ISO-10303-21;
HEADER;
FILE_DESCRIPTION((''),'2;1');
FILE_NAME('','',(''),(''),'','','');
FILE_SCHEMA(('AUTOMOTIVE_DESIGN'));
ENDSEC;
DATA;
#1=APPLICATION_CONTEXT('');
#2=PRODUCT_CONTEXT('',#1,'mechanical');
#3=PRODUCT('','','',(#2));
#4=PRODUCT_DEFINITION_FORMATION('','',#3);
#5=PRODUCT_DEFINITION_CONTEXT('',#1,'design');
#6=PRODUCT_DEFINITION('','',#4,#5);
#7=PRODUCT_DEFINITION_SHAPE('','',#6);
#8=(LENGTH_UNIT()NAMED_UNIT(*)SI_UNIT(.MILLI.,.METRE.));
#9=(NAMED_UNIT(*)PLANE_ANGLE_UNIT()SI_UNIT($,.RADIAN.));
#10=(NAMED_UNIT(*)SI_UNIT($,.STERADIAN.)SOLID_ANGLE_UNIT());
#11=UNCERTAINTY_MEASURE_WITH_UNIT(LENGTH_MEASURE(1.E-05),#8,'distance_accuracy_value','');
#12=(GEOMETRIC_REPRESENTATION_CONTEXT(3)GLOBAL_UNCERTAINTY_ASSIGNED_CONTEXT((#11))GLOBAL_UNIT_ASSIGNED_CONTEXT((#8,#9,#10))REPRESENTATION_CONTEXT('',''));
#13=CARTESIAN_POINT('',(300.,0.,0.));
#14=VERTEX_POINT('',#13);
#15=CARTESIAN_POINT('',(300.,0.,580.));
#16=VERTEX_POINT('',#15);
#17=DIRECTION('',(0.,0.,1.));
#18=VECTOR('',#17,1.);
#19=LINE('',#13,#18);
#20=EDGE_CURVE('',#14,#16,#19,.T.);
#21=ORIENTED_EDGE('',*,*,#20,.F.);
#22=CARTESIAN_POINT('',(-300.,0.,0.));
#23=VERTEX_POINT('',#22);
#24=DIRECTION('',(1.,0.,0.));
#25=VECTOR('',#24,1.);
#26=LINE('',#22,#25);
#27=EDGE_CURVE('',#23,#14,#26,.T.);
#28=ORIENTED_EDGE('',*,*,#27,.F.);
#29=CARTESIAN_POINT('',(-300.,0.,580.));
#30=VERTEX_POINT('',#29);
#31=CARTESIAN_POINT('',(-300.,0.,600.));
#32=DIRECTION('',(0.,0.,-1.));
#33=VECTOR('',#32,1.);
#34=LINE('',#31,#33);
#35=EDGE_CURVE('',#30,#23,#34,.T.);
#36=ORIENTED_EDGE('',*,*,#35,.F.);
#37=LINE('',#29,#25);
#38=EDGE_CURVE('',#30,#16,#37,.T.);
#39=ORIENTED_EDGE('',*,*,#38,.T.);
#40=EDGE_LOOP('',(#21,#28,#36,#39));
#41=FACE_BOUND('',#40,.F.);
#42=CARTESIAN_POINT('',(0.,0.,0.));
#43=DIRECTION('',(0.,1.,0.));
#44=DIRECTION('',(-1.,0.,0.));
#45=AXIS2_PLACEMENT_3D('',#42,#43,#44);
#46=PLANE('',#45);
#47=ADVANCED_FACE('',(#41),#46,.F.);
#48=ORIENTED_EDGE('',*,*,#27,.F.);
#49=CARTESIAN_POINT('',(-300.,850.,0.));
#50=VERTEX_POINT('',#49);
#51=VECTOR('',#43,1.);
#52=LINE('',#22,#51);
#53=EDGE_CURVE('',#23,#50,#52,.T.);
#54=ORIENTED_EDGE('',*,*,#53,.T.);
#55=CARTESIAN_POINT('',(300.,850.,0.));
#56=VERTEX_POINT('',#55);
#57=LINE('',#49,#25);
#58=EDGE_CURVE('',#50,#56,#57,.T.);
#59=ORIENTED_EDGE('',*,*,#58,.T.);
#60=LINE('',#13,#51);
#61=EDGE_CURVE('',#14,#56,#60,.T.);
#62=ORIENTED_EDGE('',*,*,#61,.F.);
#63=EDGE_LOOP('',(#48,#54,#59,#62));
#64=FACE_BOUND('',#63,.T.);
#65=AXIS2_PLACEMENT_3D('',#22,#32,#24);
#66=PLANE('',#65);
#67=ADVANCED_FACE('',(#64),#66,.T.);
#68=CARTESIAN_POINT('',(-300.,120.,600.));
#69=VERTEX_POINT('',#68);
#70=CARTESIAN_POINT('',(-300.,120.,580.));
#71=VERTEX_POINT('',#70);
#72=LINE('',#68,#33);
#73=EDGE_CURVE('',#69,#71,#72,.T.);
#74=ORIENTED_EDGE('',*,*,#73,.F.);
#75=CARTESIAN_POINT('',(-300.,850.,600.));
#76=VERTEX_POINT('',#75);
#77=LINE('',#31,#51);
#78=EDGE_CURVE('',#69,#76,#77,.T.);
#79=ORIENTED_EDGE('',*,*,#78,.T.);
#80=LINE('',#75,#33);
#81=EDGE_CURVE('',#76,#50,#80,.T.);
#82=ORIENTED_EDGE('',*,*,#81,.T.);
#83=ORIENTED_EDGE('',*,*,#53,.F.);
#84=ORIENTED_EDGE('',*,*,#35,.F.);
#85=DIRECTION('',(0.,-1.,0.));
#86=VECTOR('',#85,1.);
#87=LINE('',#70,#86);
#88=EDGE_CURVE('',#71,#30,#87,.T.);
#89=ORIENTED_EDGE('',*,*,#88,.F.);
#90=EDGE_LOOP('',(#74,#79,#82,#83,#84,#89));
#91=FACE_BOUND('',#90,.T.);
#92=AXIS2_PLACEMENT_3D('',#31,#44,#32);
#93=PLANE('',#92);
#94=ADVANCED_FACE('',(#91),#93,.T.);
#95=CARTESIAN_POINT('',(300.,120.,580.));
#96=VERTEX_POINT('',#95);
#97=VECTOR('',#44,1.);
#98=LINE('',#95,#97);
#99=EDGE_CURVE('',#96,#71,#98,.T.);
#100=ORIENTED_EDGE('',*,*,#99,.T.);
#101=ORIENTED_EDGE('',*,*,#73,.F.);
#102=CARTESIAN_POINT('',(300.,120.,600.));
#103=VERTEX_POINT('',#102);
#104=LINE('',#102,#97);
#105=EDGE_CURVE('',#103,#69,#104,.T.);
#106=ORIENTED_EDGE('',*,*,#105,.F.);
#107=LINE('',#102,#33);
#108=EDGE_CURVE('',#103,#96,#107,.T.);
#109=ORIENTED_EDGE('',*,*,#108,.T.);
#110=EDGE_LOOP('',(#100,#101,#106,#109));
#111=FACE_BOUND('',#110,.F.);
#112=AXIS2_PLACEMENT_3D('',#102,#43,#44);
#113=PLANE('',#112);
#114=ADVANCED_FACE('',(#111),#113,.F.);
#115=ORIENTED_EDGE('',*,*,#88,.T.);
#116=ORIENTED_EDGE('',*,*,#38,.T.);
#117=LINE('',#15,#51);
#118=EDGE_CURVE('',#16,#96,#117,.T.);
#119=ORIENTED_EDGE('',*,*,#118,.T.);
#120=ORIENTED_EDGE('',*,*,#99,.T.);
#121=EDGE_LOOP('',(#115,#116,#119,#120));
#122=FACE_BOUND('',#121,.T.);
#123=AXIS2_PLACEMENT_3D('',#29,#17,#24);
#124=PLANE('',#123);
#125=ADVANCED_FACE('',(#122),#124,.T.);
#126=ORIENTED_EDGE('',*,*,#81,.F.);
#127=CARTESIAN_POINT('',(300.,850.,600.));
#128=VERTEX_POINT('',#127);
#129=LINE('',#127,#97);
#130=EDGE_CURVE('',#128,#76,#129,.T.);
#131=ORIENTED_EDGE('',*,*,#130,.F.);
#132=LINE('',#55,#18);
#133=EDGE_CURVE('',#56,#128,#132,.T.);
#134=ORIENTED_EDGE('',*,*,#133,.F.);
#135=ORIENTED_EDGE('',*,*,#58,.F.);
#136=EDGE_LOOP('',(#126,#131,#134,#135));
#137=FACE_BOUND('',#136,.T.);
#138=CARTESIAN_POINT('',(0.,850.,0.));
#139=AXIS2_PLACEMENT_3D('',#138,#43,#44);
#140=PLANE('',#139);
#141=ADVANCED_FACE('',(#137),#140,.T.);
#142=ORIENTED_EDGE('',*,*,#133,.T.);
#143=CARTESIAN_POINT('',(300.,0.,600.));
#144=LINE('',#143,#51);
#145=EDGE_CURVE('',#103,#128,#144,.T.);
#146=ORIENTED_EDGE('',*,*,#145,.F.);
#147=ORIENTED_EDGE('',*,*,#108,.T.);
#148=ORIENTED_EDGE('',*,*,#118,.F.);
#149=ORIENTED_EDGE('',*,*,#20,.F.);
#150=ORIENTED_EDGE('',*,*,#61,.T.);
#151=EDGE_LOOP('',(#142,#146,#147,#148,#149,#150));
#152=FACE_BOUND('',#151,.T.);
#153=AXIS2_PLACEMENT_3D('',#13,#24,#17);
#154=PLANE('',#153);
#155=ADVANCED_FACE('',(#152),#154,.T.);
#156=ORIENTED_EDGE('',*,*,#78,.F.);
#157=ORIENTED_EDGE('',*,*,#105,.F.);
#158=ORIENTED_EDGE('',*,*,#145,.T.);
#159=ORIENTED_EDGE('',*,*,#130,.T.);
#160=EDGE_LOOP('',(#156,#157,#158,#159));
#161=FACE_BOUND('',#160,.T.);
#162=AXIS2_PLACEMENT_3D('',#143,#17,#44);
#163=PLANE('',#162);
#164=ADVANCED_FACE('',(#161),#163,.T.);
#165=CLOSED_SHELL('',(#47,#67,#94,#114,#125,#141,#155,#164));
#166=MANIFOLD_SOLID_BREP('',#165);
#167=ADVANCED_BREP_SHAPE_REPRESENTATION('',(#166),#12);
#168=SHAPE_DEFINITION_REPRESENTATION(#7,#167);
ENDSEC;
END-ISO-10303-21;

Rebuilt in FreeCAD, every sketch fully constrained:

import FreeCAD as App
import Part
import Sketcher

V = App.Vector


def add_polygon(sketch, points):
    """Adds a closed chain of lines whose ends are joined by coincident constraints."""
    first, n = sketch.GeometryCount, len(points)
    for a, b in zip(points, points[1:] + points[:1]):
        sketch.addGeometry(Part.LineSegment(App.Vector(*a, 0), App.Vector(*b, 0)), False)
    for i in range(n):
        sketch.addConstraint(Sketcher.Constraint("Coincident", first + i, 2, first + (i + 1) % n, 1))

doc = App.newDocument("Part")
body = doc.addObject("PartDesign::Body", "Body")

# Sketch on XZ plane
sketch1 = body.newObject("Sketcher::SketchObject", "Sketch")
sketch1.AttachmentSupport = (doc.getObject("XZ_Plane"), [""])
sketch1.MapMode = "FlatFace"
add_polygon(sketch1, [(300, 0), (-300, 0), (-300, 600), (300, 600)])  # lines 0-3
sketch1.addConstraint(Sketcher.Constraint("Horizontal", 0))
sketch1.addConstraint(Sketcher.Constraint("Vertical", 1))
sketch1.addConstraint(Sketcher.Constraint("Horizontal", 2))
sketch1.addConstraint(Sketcher.Constraint("Vertical", 3))
sketch1.addConstraint(Sketcher.Constraint("Symmetric", 0, 2, 3, 2, -1, 1))
sketch1.addConstraint(Sketcher.Constraint("Equal", 2, 1))
sketch1.addConstraint(Sketcher.Constraint("DistanceX", 0, 2, 0, 1, 600.0))
pad1 = body.newObject("PartDesign::Pad", "Pad")
pad1.Profile = sketch1
pad1.Length = 850
pad1.Reversed = True

# Sketch on XY plane
sketch2 = body.newObject("Sketcher::SketchObject", "Sketch001")
sketch2.AttachmentSupport = (doc.getObject("XY_Plane"), [""])
sketch2.MapMode = "FlatFace"
sketch2.AttachmentOffset = App.Placement(V(0, 0, 600), App.Rotation())
add_polygon(sketch2, [(-300, 120), (-300, 0), (300, 0), (300, 120)])  # lines 0-3
sketch2.addConstraint(Sketcher.Constraint("Vertical", 0))
sketch2.addConstraint(Sketcher.Constraint("Horizontal", 1))
sketch2.addConstraint(Sketcher.Constraint("Vertical", 2))
sketch2.addConstraint(Sketcher.Constraint("Horizontal", 3))
sketch2.addConstraint(Sketcher.Constraint("Symmetric", 0, 2, 1, 2, -1, 1))
sketch2.addConstraint(Sketcher.Constraint("DistanceY", 0, 2, 0, 1, 120.0))
sketch2.addConstraint(Sketcher.Constraint("DistanceX", 1, 1, 1, 2, 600.0))
pocket1 = body.newObject("PartDesign::Pocket", "Pocket")
pocket1.Profile = sketch2
pocket1.Length = 20

doc.recompute()
